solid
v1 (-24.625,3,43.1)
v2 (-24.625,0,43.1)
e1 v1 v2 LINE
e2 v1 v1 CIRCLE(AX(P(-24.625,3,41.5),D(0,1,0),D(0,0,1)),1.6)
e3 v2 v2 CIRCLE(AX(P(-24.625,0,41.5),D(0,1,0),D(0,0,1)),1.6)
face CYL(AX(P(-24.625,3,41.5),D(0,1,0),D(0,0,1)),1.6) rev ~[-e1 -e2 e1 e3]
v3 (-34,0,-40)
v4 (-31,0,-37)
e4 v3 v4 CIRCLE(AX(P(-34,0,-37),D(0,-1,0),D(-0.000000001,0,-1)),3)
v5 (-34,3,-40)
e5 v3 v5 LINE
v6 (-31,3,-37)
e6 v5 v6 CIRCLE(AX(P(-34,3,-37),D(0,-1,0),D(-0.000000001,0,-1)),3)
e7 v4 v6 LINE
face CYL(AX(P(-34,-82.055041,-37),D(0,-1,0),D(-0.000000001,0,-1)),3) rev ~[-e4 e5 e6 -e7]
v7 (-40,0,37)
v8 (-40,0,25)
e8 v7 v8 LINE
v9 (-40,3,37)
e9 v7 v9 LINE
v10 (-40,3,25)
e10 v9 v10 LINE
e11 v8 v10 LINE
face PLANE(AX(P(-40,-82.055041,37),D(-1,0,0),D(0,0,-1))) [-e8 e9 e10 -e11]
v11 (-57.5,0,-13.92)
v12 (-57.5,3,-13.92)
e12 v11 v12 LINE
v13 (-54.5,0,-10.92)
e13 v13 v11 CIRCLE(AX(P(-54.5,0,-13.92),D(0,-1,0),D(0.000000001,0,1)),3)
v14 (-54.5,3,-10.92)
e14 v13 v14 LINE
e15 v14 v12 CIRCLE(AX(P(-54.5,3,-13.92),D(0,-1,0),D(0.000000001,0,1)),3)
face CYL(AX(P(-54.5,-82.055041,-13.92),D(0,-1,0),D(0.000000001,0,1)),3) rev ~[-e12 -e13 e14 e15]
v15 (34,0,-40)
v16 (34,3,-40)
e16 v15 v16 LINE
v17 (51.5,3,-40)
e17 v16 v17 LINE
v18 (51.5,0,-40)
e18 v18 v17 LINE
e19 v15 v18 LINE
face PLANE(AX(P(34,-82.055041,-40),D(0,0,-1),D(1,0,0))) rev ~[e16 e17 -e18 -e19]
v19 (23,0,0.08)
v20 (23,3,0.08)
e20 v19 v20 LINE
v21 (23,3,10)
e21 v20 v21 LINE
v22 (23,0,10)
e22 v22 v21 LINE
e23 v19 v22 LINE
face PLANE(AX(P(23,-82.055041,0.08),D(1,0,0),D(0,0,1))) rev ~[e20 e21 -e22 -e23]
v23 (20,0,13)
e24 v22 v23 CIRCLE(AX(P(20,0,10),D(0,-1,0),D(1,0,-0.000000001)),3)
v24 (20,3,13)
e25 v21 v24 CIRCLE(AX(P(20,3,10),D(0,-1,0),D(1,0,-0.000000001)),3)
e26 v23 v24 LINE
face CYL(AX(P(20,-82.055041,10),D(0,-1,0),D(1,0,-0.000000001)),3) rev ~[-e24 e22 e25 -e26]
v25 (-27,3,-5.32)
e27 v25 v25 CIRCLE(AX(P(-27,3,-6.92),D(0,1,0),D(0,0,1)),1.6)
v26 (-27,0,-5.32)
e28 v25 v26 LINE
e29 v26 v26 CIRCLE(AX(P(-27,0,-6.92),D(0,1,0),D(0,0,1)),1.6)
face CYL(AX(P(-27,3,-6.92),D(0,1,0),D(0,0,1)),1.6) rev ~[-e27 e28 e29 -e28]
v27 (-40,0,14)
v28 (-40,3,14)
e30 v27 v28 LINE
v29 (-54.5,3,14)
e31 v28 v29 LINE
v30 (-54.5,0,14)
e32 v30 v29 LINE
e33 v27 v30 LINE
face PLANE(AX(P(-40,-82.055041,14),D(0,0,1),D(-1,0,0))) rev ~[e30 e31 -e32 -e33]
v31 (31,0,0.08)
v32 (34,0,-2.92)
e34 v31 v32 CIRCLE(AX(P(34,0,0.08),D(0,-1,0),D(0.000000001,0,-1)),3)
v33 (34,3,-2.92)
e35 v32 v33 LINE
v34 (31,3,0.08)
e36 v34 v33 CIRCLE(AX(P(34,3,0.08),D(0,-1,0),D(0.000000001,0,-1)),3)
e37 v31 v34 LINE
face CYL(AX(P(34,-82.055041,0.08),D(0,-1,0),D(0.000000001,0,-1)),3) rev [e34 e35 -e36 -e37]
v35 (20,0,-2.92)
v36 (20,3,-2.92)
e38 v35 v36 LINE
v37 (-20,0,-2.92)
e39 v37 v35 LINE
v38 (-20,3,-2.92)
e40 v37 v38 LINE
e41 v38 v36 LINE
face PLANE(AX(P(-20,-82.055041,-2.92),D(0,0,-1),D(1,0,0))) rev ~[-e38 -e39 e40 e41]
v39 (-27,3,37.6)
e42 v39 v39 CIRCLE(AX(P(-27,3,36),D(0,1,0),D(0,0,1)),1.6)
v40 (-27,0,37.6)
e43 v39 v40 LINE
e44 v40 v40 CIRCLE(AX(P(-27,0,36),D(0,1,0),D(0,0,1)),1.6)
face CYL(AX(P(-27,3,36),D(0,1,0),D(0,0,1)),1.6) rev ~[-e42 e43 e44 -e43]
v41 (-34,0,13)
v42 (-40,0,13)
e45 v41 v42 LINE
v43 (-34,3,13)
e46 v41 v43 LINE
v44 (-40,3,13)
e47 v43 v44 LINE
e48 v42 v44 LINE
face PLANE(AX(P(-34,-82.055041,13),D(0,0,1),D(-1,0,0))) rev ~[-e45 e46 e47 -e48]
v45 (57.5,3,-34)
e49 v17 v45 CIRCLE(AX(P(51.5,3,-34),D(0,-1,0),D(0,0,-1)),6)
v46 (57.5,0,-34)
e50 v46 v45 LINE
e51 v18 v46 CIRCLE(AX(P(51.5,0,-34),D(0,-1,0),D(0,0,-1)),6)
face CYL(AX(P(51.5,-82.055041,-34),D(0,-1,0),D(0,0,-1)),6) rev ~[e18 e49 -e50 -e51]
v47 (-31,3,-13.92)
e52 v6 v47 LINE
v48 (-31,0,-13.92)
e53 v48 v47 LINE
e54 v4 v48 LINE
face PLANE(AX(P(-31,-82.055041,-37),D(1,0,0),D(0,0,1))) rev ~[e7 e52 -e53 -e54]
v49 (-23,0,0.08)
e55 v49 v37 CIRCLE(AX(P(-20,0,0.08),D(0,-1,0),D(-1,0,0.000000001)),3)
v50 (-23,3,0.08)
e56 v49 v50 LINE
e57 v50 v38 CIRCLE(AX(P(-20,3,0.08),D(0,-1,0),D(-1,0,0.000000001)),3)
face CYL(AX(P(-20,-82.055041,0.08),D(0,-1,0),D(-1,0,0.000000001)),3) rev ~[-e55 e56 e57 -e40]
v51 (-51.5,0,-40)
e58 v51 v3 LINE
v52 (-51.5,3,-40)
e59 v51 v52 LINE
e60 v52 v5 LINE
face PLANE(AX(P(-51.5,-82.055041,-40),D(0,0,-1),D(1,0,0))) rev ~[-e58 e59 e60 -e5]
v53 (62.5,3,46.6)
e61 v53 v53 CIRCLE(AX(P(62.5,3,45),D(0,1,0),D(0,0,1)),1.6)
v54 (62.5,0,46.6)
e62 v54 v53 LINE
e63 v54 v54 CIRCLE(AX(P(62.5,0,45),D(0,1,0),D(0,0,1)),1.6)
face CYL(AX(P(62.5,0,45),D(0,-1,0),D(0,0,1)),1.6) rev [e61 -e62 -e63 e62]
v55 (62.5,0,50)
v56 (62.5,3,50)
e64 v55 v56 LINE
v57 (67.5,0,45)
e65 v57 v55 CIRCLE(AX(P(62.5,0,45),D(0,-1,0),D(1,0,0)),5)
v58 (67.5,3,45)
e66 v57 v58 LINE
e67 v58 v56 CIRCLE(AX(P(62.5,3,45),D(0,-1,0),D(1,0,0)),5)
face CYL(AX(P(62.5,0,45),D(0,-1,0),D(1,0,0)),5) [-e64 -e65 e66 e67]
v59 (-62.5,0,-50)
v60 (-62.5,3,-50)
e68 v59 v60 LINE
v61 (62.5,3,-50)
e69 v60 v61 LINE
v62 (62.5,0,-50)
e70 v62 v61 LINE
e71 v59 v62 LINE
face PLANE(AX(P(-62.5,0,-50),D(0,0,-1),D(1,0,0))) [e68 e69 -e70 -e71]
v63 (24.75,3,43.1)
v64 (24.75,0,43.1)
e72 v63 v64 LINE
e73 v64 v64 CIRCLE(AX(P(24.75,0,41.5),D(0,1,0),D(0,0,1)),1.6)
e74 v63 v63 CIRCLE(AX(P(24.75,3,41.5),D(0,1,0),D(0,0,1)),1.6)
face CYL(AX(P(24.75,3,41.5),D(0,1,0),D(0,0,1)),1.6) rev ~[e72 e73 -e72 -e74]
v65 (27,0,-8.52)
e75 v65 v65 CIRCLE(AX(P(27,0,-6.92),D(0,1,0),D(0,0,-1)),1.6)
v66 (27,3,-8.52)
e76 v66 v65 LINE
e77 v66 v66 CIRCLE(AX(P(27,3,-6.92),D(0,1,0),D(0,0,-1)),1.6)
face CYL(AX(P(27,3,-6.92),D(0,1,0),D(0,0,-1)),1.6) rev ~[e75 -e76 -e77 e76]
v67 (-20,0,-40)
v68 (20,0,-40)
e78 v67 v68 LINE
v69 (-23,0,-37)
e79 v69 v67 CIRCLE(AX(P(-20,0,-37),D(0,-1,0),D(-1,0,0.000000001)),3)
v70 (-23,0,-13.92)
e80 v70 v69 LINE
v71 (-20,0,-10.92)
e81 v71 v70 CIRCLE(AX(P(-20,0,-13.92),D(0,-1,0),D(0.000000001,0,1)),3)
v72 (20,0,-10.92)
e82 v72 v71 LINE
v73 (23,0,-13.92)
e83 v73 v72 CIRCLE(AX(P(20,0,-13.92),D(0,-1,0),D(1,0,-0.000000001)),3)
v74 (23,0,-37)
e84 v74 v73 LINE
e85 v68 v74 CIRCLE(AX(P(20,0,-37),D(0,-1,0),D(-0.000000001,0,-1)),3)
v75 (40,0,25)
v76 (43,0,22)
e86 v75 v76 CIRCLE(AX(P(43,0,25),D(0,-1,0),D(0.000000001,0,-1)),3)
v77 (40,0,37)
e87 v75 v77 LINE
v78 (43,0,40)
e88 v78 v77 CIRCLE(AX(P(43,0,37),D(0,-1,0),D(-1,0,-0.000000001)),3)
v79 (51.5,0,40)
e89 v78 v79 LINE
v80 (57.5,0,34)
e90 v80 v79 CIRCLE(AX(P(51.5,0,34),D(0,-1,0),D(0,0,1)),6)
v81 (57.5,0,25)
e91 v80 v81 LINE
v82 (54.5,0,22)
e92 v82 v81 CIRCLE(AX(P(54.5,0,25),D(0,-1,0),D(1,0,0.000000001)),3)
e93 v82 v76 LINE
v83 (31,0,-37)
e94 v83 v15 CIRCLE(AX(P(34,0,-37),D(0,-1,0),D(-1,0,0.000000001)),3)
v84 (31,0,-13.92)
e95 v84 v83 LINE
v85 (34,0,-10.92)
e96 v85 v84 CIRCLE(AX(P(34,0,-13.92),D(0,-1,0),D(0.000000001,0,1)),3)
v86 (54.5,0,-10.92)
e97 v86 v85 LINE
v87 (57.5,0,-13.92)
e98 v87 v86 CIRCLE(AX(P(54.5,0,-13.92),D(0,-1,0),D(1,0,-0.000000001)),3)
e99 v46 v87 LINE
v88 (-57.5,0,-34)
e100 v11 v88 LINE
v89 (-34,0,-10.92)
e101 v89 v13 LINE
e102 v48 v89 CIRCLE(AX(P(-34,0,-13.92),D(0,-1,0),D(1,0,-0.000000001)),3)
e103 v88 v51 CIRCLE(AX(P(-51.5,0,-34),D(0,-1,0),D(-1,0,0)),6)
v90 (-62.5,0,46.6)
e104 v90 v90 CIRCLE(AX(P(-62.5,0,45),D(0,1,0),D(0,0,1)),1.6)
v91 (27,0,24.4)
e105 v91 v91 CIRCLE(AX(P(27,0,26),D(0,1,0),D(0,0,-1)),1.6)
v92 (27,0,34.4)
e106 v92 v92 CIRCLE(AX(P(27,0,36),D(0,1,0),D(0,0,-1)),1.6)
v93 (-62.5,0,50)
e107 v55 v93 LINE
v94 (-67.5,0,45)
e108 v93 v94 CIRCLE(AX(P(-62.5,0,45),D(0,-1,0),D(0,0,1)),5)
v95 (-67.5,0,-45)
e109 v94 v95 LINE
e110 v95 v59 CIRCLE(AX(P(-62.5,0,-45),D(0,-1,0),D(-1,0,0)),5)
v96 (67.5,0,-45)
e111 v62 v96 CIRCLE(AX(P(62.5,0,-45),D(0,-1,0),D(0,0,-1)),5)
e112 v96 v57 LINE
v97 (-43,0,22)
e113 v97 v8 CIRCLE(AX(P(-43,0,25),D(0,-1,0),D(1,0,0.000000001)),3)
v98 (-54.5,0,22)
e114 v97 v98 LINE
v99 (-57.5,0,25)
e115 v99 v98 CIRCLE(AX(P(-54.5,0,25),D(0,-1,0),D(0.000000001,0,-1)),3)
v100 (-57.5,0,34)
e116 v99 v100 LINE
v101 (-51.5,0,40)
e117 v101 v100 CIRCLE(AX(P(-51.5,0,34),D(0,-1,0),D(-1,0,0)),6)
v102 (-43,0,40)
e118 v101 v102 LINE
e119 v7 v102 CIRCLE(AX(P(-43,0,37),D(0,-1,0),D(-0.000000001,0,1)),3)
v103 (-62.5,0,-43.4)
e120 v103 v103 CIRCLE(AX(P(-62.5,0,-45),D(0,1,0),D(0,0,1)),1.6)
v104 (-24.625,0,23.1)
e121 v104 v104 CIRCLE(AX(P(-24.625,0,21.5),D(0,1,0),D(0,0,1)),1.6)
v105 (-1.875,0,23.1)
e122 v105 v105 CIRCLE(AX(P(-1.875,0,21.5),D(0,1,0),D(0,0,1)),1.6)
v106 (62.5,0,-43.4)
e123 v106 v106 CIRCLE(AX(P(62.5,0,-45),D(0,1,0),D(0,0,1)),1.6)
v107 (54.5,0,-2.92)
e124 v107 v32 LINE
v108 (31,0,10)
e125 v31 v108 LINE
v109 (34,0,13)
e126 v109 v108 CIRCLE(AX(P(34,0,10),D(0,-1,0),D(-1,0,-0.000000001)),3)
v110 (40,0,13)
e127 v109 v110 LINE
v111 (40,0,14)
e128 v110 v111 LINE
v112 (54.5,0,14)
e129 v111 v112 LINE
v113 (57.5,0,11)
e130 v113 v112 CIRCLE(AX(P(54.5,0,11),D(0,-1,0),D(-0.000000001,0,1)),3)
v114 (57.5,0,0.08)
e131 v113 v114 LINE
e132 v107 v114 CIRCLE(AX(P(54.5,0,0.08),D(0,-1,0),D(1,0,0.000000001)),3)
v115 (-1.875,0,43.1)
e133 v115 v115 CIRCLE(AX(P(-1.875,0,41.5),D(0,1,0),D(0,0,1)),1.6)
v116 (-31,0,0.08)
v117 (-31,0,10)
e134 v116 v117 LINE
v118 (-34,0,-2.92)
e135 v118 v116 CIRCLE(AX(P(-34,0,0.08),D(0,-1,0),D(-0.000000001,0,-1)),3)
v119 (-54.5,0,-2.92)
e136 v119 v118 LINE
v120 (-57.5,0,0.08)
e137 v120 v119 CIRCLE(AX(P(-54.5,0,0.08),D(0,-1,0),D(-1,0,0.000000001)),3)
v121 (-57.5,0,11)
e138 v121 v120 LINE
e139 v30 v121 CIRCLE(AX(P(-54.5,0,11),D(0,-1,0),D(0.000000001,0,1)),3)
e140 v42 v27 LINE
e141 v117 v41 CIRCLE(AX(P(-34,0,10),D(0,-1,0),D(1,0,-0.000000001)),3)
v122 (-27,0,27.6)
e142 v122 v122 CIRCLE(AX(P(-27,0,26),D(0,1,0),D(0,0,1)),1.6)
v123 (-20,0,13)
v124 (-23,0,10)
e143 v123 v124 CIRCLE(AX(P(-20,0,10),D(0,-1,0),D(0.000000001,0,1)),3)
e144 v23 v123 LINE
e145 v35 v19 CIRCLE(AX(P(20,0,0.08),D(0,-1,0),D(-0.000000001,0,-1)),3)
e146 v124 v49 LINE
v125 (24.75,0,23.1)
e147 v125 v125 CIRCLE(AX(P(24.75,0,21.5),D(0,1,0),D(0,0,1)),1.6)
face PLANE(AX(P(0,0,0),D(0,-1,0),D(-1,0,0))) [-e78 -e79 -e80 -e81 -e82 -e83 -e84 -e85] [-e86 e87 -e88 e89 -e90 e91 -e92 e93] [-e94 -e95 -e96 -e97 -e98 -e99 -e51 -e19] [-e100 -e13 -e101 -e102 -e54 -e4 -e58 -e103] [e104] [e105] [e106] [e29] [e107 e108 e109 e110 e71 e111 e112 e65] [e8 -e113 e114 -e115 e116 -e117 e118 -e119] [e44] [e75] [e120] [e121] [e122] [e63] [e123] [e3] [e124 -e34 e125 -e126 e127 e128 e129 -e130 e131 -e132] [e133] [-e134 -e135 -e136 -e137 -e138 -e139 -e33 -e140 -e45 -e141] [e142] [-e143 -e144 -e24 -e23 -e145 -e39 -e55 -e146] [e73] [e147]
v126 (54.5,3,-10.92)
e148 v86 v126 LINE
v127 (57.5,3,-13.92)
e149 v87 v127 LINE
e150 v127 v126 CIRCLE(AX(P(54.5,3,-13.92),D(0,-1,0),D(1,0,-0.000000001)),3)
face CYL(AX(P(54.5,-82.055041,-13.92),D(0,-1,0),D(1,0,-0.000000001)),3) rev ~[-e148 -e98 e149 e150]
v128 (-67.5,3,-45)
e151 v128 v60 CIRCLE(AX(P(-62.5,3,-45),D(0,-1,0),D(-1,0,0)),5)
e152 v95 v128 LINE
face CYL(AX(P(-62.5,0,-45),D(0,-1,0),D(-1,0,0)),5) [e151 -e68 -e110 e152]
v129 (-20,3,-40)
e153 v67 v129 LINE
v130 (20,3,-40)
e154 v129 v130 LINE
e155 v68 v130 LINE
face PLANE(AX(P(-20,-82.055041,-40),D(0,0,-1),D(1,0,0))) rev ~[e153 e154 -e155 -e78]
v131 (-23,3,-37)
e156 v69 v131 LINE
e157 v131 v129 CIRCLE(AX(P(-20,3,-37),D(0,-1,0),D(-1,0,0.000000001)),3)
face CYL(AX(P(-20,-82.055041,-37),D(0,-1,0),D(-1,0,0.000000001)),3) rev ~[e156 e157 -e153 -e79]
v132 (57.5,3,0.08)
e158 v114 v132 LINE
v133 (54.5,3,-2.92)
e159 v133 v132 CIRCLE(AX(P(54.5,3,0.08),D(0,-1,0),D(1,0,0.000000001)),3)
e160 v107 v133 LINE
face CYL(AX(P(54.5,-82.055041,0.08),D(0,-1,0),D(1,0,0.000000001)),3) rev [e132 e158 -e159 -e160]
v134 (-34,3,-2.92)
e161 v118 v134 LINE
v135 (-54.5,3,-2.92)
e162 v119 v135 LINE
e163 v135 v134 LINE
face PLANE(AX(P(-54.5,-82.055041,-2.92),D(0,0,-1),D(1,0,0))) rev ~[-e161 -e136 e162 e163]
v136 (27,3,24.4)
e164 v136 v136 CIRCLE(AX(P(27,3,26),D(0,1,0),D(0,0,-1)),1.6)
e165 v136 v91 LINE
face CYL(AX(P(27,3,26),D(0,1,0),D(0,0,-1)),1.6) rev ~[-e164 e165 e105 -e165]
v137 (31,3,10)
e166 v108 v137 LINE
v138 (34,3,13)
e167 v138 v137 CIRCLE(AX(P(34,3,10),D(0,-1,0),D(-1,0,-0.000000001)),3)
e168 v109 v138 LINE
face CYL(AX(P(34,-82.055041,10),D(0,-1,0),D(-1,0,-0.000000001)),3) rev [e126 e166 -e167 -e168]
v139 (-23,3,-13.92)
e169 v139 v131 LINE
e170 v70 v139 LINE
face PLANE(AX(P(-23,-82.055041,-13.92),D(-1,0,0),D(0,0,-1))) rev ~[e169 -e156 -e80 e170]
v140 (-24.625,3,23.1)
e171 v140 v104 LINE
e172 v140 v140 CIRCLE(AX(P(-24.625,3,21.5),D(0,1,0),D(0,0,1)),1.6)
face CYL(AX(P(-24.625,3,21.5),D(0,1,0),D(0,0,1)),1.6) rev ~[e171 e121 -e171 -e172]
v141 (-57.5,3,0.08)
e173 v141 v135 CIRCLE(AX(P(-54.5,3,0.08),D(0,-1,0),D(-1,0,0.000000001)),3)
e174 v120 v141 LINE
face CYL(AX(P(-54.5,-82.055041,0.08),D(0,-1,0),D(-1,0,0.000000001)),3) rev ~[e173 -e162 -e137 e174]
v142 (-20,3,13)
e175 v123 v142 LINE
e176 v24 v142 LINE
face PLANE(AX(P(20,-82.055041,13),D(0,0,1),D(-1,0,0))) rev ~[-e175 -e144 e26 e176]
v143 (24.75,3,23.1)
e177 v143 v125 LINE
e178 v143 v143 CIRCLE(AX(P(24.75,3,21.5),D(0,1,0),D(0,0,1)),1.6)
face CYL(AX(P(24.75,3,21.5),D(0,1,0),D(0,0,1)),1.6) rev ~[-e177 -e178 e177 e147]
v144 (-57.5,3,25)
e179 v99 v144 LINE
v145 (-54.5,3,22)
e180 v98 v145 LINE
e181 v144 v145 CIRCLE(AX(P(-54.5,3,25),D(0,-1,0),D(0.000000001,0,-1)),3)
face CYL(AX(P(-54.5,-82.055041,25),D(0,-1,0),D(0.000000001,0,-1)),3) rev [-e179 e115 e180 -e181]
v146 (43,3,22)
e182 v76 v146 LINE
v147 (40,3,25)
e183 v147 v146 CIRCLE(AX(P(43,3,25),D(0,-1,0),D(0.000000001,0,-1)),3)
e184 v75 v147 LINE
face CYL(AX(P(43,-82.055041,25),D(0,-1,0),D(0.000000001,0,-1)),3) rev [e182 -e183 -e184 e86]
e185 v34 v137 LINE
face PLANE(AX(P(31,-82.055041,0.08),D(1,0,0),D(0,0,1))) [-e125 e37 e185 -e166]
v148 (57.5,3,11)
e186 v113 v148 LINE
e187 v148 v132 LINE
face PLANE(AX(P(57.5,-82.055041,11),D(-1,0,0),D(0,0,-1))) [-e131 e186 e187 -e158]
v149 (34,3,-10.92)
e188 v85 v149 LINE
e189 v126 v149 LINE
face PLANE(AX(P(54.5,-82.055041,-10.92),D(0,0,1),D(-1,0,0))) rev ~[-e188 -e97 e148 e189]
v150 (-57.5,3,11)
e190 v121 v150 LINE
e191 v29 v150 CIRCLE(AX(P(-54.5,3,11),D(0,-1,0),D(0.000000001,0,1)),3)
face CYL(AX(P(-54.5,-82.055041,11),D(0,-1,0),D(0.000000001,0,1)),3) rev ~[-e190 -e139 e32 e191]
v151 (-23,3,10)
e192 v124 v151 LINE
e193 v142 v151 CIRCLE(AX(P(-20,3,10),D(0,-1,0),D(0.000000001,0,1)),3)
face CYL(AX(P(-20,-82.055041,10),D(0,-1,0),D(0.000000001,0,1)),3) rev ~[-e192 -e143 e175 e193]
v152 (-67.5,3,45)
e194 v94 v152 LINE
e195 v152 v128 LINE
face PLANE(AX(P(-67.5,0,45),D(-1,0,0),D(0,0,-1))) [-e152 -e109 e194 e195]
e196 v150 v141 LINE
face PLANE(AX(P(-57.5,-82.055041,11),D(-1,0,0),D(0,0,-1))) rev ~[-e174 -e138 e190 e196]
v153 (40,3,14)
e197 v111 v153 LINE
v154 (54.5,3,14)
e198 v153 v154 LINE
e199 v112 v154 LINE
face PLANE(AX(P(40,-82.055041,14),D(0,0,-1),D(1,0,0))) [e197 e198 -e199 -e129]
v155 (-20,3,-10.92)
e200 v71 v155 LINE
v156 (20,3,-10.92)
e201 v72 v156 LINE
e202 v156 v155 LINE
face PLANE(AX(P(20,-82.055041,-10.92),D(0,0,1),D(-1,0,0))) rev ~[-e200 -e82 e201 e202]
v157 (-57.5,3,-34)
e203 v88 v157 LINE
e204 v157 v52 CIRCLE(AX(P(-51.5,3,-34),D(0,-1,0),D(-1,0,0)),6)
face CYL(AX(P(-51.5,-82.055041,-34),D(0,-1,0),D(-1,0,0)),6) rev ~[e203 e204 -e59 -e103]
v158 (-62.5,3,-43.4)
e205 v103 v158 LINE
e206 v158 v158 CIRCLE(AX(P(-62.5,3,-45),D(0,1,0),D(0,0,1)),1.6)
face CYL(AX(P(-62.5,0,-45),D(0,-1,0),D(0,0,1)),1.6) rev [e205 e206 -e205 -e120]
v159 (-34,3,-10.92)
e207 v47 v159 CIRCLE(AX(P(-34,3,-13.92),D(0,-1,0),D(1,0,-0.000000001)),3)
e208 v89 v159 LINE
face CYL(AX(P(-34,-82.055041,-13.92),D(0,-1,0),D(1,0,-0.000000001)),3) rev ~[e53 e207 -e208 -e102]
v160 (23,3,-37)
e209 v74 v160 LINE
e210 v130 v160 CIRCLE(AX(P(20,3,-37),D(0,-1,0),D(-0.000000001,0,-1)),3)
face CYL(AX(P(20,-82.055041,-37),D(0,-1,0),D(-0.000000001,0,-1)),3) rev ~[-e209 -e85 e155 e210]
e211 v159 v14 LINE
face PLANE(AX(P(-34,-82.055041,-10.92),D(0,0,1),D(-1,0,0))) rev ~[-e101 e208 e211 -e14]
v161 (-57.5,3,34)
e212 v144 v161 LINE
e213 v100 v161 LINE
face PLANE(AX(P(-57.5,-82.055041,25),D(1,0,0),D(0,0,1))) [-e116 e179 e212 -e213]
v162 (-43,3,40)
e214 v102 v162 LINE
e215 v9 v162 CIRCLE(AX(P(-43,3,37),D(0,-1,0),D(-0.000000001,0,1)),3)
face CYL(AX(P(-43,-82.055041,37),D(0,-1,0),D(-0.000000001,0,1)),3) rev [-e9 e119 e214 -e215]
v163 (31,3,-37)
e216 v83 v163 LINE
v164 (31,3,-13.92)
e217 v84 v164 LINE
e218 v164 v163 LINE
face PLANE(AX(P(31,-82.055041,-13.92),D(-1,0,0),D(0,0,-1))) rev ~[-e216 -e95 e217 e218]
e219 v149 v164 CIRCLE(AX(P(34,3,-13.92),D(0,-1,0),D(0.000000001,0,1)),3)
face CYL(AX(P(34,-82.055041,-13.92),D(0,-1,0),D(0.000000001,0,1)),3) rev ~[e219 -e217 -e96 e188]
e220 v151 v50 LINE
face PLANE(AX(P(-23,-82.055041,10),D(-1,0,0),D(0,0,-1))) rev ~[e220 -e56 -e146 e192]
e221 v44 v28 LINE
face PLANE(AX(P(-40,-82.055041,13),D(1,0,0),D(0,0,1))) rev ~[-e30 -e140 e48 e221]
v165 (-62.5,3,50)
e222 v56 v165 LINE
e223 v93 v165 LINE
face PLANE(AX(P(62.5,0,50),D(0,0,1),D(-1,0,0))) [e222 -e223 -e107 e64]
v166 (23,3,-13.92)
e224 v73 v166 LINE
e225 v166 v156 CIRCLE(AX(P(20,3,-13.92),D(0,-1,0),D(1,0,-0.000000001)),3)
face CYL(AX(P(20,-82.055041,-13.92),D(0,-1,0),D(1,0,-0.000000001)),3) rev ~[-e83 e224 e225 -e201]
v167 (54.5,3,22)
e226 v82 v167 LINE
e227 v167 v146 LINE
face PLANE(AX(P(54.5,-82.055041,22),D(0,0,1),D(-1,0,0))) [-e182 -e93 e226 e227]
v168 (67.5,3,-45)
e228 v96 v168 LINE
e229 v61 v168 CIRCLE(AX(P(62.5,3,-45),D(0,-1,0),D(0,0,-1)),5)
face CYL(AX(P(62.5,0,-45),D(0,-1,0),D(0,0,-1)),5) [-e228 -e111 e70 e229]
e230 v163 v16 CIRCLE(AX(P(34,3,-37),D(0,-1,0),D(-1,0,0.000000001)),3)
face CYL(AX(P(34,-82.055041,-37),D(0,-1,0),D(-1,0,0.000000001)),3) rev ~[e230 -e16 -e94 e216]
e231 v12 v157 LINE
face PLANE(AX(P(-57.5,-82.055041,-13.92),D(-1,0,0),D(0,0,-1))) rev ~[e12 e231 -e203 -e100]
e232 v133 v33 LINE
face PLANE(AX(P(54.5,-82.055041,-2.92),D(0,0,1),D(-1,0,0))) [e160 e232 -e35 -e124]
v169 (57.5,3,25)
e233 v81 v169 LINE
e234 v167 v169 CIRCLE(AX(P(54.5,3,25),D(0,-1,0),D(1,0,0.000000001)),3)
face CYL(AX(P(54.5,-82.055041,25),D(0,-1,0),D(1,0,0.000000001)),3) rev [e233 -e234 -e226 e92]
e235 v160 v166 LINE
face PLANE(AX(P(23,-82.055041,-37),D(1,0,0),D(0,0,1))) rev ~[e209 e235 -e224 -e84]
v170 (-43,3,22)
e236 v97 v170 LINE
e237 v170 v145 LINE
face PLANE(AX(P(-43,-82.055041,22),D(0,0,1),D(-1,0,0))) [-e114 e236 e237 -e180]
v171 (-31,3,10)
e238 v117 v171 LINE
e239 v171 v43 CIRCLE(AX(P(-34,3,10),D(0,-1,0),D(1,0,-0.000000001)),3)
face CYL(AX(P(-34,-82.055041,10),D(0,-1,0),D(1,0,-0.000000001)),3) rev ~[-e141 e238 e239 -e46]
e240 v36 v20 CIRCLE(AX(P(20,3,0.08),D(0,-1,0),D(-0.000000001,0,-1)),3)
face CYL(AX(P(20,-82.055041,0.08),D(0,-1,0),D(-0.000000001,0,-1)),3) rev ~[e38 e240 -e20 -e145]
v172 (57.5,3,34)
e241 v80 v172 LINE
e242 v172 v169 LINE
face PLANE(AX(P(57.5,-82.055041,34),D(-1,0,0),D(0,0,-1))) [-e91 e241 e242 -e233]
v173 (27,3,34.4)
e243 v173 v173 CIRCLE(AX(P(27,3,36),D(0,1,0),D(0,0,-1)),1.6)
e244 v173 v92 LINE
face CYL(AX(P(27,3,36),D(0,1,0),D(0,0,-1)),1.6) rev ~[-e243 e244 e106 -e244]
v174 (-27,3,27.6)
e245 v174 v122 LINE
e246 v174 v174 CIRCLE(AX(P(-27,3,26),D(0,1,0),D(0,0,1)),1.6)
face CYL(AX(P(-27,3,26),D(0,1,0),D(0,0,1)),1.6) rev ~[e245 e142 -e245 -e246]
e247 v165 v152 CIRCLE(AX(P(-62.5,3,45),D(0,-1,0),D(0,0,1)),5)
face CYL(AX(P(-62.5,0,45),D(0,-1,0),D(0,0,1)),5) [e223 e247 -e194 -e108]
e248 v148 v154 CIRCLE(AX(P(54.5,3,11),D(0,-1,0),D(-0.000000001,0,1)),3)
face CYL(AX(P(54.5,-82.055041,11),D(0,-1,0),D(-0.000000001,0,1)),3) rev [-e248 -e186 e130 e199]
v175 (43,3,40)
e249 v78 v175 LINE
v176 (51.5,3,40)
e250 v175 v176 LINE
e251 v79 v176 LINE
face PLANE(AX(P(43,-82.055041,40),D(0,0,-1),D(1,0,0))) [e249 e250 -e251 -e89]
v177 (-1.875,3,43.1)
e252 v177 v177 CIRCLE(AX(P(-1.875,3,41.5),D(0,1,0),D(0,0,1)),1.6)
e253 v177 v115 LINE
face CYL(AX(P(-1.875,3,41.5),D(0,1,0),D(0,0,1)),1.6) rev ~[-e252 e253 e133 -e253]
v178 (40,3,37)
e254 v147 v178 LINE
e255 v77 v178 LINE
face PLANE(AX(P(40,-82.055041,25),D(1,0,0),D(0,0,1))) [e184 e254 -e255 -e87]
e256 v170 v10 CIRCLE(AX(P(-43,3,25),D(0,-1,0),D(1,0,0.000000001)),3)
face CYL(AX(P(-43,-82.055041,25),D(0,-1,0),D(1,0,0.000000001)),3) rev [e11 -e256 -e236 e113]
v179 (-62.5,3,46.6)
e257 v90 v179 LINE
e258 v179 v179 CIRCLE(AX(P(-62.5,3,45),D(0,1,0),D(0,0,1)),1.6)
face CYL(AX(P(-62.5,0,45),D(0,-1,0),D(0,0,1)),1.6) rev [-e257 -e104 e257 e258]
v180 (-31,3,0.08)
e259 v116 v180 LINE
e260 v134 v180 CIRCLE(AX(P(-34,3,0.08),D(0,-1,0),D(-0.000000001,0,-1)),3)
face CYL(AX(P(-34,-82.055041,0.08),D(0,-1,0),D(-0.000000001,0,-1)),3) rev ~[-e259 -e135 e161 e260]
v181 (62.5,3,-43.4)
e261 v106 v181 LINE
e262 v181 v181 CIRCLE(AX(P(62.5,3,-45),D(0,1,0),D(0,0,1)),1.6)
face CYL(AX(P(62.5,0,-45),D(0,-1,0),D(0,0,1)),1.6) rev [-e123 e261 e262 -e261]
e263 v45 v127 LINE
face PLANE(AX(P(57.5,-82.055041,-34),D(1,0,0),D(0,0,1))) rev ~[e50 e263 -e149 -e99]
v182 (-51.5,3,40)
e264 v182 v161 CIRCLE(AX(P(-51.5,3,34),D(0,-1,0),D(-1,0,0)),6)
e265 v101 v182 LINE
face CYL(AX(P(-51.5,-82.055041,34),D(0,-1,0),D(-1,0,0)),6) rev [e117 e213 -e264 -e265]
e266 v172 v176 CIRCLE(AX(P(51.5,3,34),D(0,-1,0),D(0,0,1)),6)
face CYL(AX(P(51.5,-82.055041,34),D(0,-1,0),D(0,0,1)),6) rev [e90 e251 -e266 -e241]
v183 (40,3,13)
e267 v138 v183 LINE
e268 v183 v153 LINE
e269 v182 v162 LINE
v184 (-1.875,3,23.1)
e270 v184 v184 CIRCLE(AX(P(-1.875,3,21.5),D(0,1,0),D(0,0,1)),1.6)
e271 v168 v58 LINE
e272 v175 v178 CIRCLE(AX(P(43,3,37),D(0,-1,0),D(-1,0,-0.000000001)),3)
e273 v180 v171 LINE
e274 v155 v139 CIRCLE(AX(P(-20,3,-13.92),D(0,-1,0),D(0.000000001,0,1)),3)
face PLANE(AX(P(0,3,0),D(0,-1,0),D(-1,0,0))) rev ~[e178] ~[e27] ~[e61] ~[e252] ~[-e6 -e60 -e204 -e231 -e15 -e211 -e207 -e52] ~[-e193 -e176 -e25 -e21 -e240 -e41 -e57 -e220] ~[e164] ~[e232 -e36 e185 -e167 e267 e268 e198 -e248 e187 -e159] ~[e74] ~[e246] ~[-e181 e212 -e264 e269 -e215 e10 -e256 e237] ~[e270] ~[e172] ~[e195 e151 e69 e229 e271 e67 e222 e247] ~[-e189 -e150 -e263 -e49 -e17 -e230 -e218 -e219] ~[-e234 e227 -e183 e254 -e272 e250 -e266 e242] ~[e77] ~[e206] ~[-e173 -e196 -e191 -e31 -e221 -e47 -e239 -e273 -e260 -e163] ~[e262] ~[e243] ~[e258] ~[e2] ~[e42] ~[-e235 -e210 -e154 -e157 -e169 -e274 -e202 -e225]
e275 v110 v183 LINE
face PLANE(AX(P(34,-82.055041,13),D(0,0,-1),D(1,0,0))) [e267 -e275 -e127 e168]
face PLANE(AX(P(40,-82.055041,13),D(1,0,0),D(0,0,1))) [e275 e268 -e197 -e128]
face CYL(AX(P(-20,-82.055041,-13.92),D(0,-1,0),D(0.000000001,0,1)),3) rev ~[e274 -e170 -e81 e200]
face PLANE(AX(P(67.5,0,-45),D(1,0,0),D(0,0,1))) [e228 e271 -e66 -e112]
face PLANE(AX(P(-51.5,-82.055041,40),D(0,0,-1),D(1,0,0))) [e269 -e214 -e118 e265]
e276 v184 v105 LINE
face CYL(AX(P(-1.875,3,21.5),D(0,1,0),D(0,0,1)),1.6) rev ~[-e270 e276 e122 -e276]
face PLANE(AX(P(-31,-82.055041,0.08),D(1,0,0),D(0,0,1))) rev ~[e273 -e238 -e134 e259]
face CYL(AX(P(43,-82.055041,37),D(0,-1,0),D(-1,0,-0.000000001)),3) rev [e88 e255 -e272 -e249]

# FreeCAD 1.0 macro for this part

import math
import FreeCAD as App
import Part
import Sketcher
from FreeCAD import Vector
Q = App.Units.Quantity

doc = App.newDocument("Part")
body = doc.addObject("PartDesign::Body", "Body")

# Sketch on XZ plane
sketch1 = body.newObject("Sketcher::SketchObject", "Sketch")
sketch1.AttachmentSupport = (doc.getObject("XZ_Plane"), [""])
sketch1.MapMode = "FlatFace"
sketch1.addGeometry([
    Part.LineSegment(Vector(62.5, -50, 0), Vector(-62.5, -50, 0)),  # 0
    Part.ArcOfCircle(Part.Circle(Vector(-62.5, -45, 0), Vector(0, 0, 1), 5), math.radians(180), math.radians(270)),  # 1
    Part.LineSegment(Vector(-67.5, -45, 0), Vector(-67.5, 45, 0)),  # 2
    Part.ArcOfCircle(Part.Circle(Vector(-62.5, 45, 0), Vector(0, 0, 1), 5), math.radians(90), math.radians(180)),  # 3
    Part.LineSegment(Vector(-62.5, 50, 0), Vector(62.5, 50, 0)),  # 4
    Part.ArcOfCircle(Part.Circle(Vector(62.5, 45, 0), Vector(0, 0, 1), 5), math.radians(0), math.radians(90)),  # 5
    Part.LineSegment(Vector(67.5, 45, 0), Vector(67.5, -45, 0)),  # 6
    Part.ArcOfCircle(Part.Circle(Vector(62.5, -45, 0), Vector(0, 0, 1), 5), math.radians(-90), math.radians(0)),  # 7
    Part.Circle(Vector(62.5, 45, 0), Vector(0, 0, 1), 1.6),  # 8
    Part.Circle(Vector(-62.5, 45, 0), Vector(0, 0, 1), 1.6),  # 9
    Part.Circle(Vector(62.5, -45, 0), Vector(0, 0, 1), 1.6),  # 10
    Part.Circle(Vector(-62.5, -45, 0), Vector(0, 0, 1), 1.6),  # 11
], False)
sketch1.addConstraint([
    Sketcher.Constraint("Tangent", 0, 2, 1, 2),
    Sketcher.Constraint("Tangent", 1, 1, 2, 1),
    Sketcher.Constraint("Tangent", 2, 2, 3, 2),
    Sketcher.Constraint("Tangent", 3, 1, 4, 1),
    Sketcher.Constraint("Tangent", 4, 2, 5, 2),
    Sketcher.Constraint("Tangent", 5, 1, 6, 1),
    Sketcher.Constraint("Tangent", 6, 2, 7, 2),
    Sketcher.Constraint("Tangent", 7, 1, 0, 1),
    Sketcher.Constraint("Horizontal", 0),
    Sketcher.Constraint("Vertical", 2),
    Sketcher.Constraint("Horizontal", 4),
    Sketcher.Constraint("Vertical", 6),
    Sketcher.Constraint("Coincident", 8, 3, 5, 3),
    Sketcher.Constraint("Coincident", 9, 3, 3, 3),
    Sketcher.Constraint("Coincident", 10, 3, 7, 3),
    Sketcher.Constraint("Coincident", 11, 3, 1, 3),
    Sketcher.Constraint("Equal", 1, 3),
    Sketcher.Constraint("Equal", 3, 5),
    Sketcher.Constraint("Equal", 5, 7),
    Sketcher.Constraint("Equal", 8, 9),
    Sketcher.Constraint("Equal", 9, 10),
    Sketcher.Constraint("Equal", 10, 11),
    Sketcher.Constraint("Symmetric", 1, 3, 5, 3, -1, 1),
    Sketcher.Constraint("Radius", 1, Q("5 mm")),
    Sketcher.Constraint("Diameter", 8, Q("3.2 mm")),
    Sketcher.Constraint("DistanceX", 0, 2, 0, 1, Q("125 mm")),
    Sketcher.Constraint("DistanceY", 2, 1, 2, 2, Q("90 mm")),
])
pad1 = body.newObject("PartDesign::Pad", "Pad")
pad1.Profile = sketch1
pad1.Length = 3
pad1.Reversed = True

# Sketch on XZ plane
sketch2 = body.newObject("Sketcher::SketchObject", "Sketch001")
sketch2.AttachmentSupport = (doc.getObject("XZ_Plane"), [""])
sketch2.MapMode = "FlatFace"
sketch2.AttachmentOffset = App.Placement(Vector(0, 0, -3), App.Rotation())
sketch2.addGeometry([
    Part.Circle(Vector(-24.6, 41.5, 0), Vector(0, 0, 1), 1.6),  # 0
    Part.Circle(Vector(-24.6, 21.5, 0), Vector(0, 0, 1), 1.6),  # 1
    Part.Circle(Vector(-1.9, 41.5, 0), Vector(0, 0, 1), 1.6),  # 2
    Part.Circle(Vector(-1.9, 21.5, 0), Vector(0, 0, 1), 1.6),  # 3
    Part.Circle(Vector(24.8, 41.5, 0), Vector(0, 0, 1), 1.6),  # 4
    Part.Circle(Vector(24.8, 21.5, 0), Vector(0, 0, 1), 1.6),  # 5
], False)
sketch2.addConstraint([
    Sketcher.Constraint("Equal", 0, 1),
    Sketcher.Constraint("Equal", 1, 2),
    Sketcher.Constraint("Equal", 2, 3),
    Sketcher.Constraint("Equal", 3, 4),
    Sketcher.Constraint("Equal", 4, 5),
    Sketcher.Constraint("Horizontal", 0, 3, 2, 3),
    Sketcher.Constraint("Horizontal", 1, 3, 3, 3),
    Sketcher.Constraint("Horizontal", 2, 3, 4, 3),
    Sketcher.Constraint("Horizontal", 3, 3, 5, 3),
    Sketcher.Constraint("Vertical", 0, 3, 1, 3),
    Sketcher.Constraint("Vertical", 2, 3, 3, 3),
    Sketcher.Constraint("Vertical", 4, 3, 5, 3),
    Sketcher.Constraint("Diameter", 0, Q("3.2 mm")),
    Sketcher.Constraint("DistanceY", 1, 3, 0, 3, Q("20 mm")),
    Sketcher.Constraint("DistanceY", -1, 1, 0, 3, Q("41.5 mm")),
    Sketcher.Constraint("DistanceX", -1, 1, 4, 3, Q("24.75 mm")),
    Sketcher.Constraint("DistanceX", 0, 3, 2, 3, Q("22.75 mm")),
    Sketcher.Constraint("DistanceX", 0, 3, -1, 1, Q("24.625 mm")),
])
pocket1 = body.newObject("PartDesign::Pocket", "Pocket")
pocket1.Profile = sketch2
pocket1.Type = "ThroughAll"
pocket1.Reversed = True

# Sketch on XZ plane
sketch3 = body.newObject("Sketcher::SketchObject", "Sketch002")
sketch3.AttachmentSupport = (doc.getObject("XZ_Plane"), [""])
sketch3.MapMode = "FlatFace"
sketch3.AttachmentOffset = App.Placement(Vector(0, 0, -3), App.Rotation())
sketch3.addGeometry([
    Part.Circle(Vector(-27, 36, 0), Vector(0, 0, 1), 1.6),  # 0
    Part.Circle(Vector(27, 36, 0), Vector(0, 0, 1), 1.6),  # 1
    Part.Circle(Vector(-27, -6.9, 0), Vector(0, 0, 1), 1.6),  # 2
    Part.Circle(Vector(27, -6.9, 0), Vector(0, 0, 1), 1.6),  # 3
    Part.Circle(Vector(-27, 26, 0), Vector(0, 0, 1), 1.6),  # 4
    Part.Circle(Vector(27, 26, 0), Vector(0, 0, 1), 1.6),  # 5
], False)
sketch3.addConstraint([
    Sketcher.Constraint("Equal", 0, 1),
    Sketcher.Constraint("Equal", 1, 2),
    Sketcher.Constraint("Equal", 2, 3),
    Sketcher.Constraint("Equal", 3, 4),
    Sketcher.Constraint("Equal", 4, 5),
    Sketcher.Constraint("Symmetric", 0, 3, 1, 3, -2),
    Sketcher.Constraint("Symmetric", 2, 3, 3, 3, -2),
    Sketcher.Constraint("Symmetric", 4, 3, 5, 3, -2),
    Sketcher.Constraint("Vertical", 0, 3, 2, 3),
    Sketcher.Constraint("Vertical", 2, 3, 4, 3),
    Sketcher.Constraint("Diameter", 0, Q("3.2 mm")),
    Sketcher.Constraint("DistanceX", 0, 3, -1, 1, Q("27 mm")),
    Sketcher.Constraint("DistanceY", -1, 1, 0, 3, Q("36 mm")),
    Sketcher.Constraint("DistanceY", -1, 1, 4, 3, Q("26 mm")),
    Sketcher.Constraint("DistanceY", 2, 3, -1, 1, Q("6.92 mm")),
])
pocket2 = body.newObject("PartDesign::Pocket", "Pocket001")
pocket2.Profile = sketch3
pocket2.Type = "ThroughAll"
pocket2.Reversed = True

# Sketch on XZ plane
sketch4 = body.newObject("Sketcher::SketchObject", "Sketch003")
sketch4.AttachmentSupport = (doc.getObject("XZ_Plane"), [""])
sketch4.MapMode = "FlatFace"
sketch4.AttachmentOffset = App.Placement(Vector(0, 0, -3), App.Rotation())
sketch4.addGeometry([
    Part.ArcOfCircle(Part.Circle(Vector(-54.5, -13.9, 0), Vector(0, 0, 1), 3), math.radians(90), math.radians(180)),  # 0
    Part.LineSegment(Vector(-54.5, -10.9, 0), Vector(-34, -10.9, 0)),  # 1
    Part.ArcOfCircle(Part.Circle(Vector(-34, -13.9, 0), Vector(0, 0, 1), 3), math.radians(0), math.radians(90)),  # 2
    Part.LineSegment(Vector(-31, -13.9, 0), Vector(-31, -37, 0)),  # 3
    Part.ArcOfCircle(Part.Circle(Vector(-34, -37, 0), Vector(0, 0, 1), 3), math.radians(-90), math.radians(0)),  # 4
    Part.LineSegment(Vector(-34, -40, 0), Vector(-51.5, -40, 0)),  # 5
    Part.ArcOfCircle(Part.Circle(Vector(-51.5, -34, 0), Vector(0, 0, 1), 6), math.radians(180), math.radians(270)),  # 6
    Part.LineSegment(Vector(-57.5, -34, 0), Vector(-57.5, -13.9, 0)),  # 7
    Part.ArcOfCircle(Part.Circle(Vector(-20, -13.9, 0), Vector(0, 0, 1), 3), math.radians(90), math.radians(180)),  # 8
    Part.LineSegment(Vector(-20, -10.9, 0), Vector(20, -10.9, 0)),  # 9
    Part.ArcOfCircle(Part.Circle(Vector(20, -13.9, 0), Vector(0, 0, 1), 3), math.radians(0), math.radians(90)),  # 10
    Part.LineSegment(Vector(23, -13.9, 0), Vector(23, -37, 0)),  # 11
    Part.ArcOfCircle(Part.Circle(Vector(20, -37, 0), Vector(0, 0, 1), 3), math.radians(-90), math.radians(0)),  # 12
    Part.LineSegment(Vector(20, -40, 0), Vector(-20, -40, 0)),  # 13
    Part.ArcOfCircle(Part.Circle(Vector(-20, -37, 0), Vector(0, 0, 1), 3), math.radians(180), math.radians(270)),  # 14
    Part.LineSegment(Vector(-23, -37, 0), Vector(-23, -13.9, 0)),  # 15
    Part.ArcOfCircle(Part.Circle(Vector(34, -37, 0), Vector(0, 0, 1), 3), math.radians(180), math.radians(270)),  # 16
    Part.LineSegment(Vector(31, -37, 0), Vector(31, -13.9, 0)),  # 17
    Part.ArcOfCircle(Part.Circle(Vector(34, -13.9, 0), Vector(0, 0, 1), 3), math.radians(90), math.radians(180)),  # 18
    Part.LineSegment(Vector(34, -10.9, 0), Vector(54.5, -10.9, 0)),  # 19
    Part.ArcOfCircle(Part.Circle(Vector(54.5, -13.9, 0), Vector(0, 0, 1), 3), math.radians(0), math.radians(90)),  # 20
    Part.LineSegment(Vector(57.5, -13.9, 0), Vector(57.5, -34, 0)),  # 21
    Part.ArcOfCircle(Part.Circle(Vector(51.5, -34, 0), Vector(0, 0, 1), 6), math.radians(-90), math.radians(0)),  # 22
    Part.LineSegment(Vector(51.5, -40, 0), Vector(34, -40, 0)),  # 23
    Part.LineSegment(Vector(57.5, 11, 0), Vector(57.5, 0.1, 0)),  # 24
    Part.ArcOfCircle(Part.Circle(Vector(54.5, 0.1, 0), Vector(0, 0, 1), 3), math.radians(-90), math.radians(0)),  # 25
    Part.LineSegment(Vector(54.5, -2.9, 0), Vector(34, -2.9, 0)),  # 26
    Part.ArcOfCircle(Part.Circle(Vector(34, 0.1, 0), Vector(0, 0, 1), 3), math.radians(180), math.radians(270)),  # 27
    Part.LineSegment(Vector(31, 0.1, 0), Vector(31, 10, 0)),  # 28
    Part.ArcOfCircle(Part.Circle(Vector(34, 10, 0), Vector(0, 0, 1), 3), math.radians(90), math.radians(180)),  # 29
    Part.LineSegment(Vector(34, 13, 0), Vector(40, 13, 0)),  # 30
    Part.LineSegment(Vector(40, 13, 0), Vector(40, 14, 0)),  # 31
    Part.LineSegment(Vector(40, 14, 0), Vector(54.5, 14, 0)),  # 32
    Part.ArcOfCircle(Part.Circle(Vector(54.5, 11, 0), Vector(0, 0, 1), 3), math.radians(0), math.radians(90)),  # 33
    Part.ArcOfCircle(Part.Circle(Vector(-20, 0.1, 0), Vector(0, 0, 1), 3), math.radians(180), math.radians(270)),  # 34
    Part.LineSegment(Vector(-23, 0.1, 0), Vector(-23, 10, 0)),  # 35
    Part.ArcOfCircle(Part.Circle(Vector(-20, 10, 0), Vector(0, 0, 1), 3), math.radians(90), math.radians(180)),  # 36
    Part.LineSegment(Vector(-20, 13, 0), Vector(20, 13, 0)),  # 37
    Part.ArcOfCircle(Part.Circle(Vector(20, 10, 0), Vector(0, 0, 1), 3), math.radians(0), math.radians(90)),  # 38
    Part.LineSegment(Vector(23, 10, 0), Vector(23, 0.1, 0)),  # 39
    Part.ArcOfCircle(Part.Circle(Vector(20, 0.1, 0), Vector(0, 0, 1), 3), math.radians(-90), math.radians(0)),  # 40
    Part.LineSegment(Vector(20, -2.9, 0), Vector(-20, -2.9, 0)),  # 41
    Part.LineSegment(Vector(-31, 10, 0), Vector(-31, 0.1, 0)),  # 42
    Part.ArcOfCircle(Part.Circle(Vector(-34, 0.1, 0), Vector(0, 0, 1), 3), math.radians(-90), math.radians(0)),  # 43
    Part.LineSegment(Vector(-34, -2.9, 0), Vector(-54.5, -2.9, 0)),  # 44
    Part.ArcOfCircle(Part.Circle(Vector(-54.5, 0.1, 0), Vector(0, 0, 1), 3), math.radians(180), math.radians(270)),  # 45
    Part.LineSegment(Vector(-57.5, 0.1, 0), Vector(-57.5, 11, 0)),  # 46
    Part.ArcOfCircle(Part.Circle(Vector(-54.5, 11, 0), Vector(0, 0, 1), 3), math.radians(90), math.radians(180)),  # 47
    Part.LineSegment(Vector(-54.5, 14, 0), Vector(-40, 14, 0)),  # 48
    Part.LineSegment(Vector(-40, 14, 0), Vector(-40, 13, 0)),  # 49
    Part.LineSegment(Vector(-40, 13, 0), Vector(-34, 13, 0)),  # 50
    Part.ArcOfCircle(Part.Circle(Vector(-34, 10, 0), Vector(0, 0, 1), 3), math.radians(0), math.radians(90)),  # 51
    Part.ArcOfCircle(Part.Circle(Vector(-54.5, 25, 0), Vector(0, 0, 1), 3), math.radians(180), math.radians(270)),  # 52
    Part.LineSegment(Vector(-57.5, 25, 0), Vector(-57.5, 34, 0)),  # 53
    Part.ArcOfCircle(Part.Circle(Vector(-51.5, 34, 0), Vector(0, 0, 1), 6), math.radians(90), math.radians(180)),  # 54
    Part.LineSegment(Vector(-51.5, 40, 0), Vector(-43, 40, 0)),  # 55
    Part.ArcOfCircle(Part.Circle(Vector(-43, 37, 0), Vector(0, 0, 1), 3), math.radians(0), math.radians(90)),  # 56
    Part.LineSegment(Vector(-40, 37, 0), Vector(-40, 25, 0)),  # 57
    Part.ArcOfCircle(Part.Circle(Vector(-43, 25, 0), Vector(0, 0, 1), 3), math.radians(-90), math.radians(0)),  # 58
    Part.LineSegment(Vector(-43, 22, 0), Vector(-54.5, 22, 0)),  # 59
    Part.LineSegment(Vector(57.5, 34, 0), Vector(57.5, 25, 0)),  # 60
    Part.ArcOfCircle(Part.Circle(Vector(54.5, 25, 0), Vector(0, 0, 1), 3), math.radians(-90), math.radians(0)),  # 61
    Part.LineSegment(Vector(54.5, 22, 0), Vector(43, 22, 0)),  # 62
    Part.ArcOfCircle(Part.Circle(Vector(43, 25, 0), Vector(0, 0, 1), 3), math.radians(180), math.radians(270)),  # 63
    Part.LineSegment(Vector(40, 25, 0), Vector(40, 37, 0)),  # 64
    Part.ArcOfCircle(Part.Circle(Vector(43, 37, 0), Vector(0, 0, 1), 3), math.radians(90), math.radians(180)),  # 65
    Part.LineSegment(Vector(43, 40, 0), Vector(51.5, 40, 0)),  # 66
    Part.ArcOfCircle(Part.Circle(Vector(51.5, 34, 0), Vector(0, 0, 1), 6), math.radians(0), math.radians(90)),  # 67
], False)
sketch4.addConstraint([
    Sketcher.Constraint("Tangent", 0, 1, 1, 1),
    Sketcher.Constraint("Tangent", 1, 2, 2, 2),
    Sketcher.Constraint("Tangent", 2, 1, 3, 1),
    Sketcher.Constraint("Tangent", 3, 2, 4, 2),
    Sketcher.Constraint("Tangent", 4, 1, 5, 1),
    Sketcher.Constraint("Tangent", 5, 2, 6, 2),
    Sketcher.Constraint("Tangent", 6, 1, 7, 1),
    Sketcher.Constraint("Tangent", 7, 2, 0, 2),
    Sketcher.Constraint("Tangent", 8, 1, 9, 1),
    Sketcher.Constraint("Tangent", 9, 2, 10, 2),
    Sketcher.Constraint("Tangent", 10, 1, 11, 1),
    Sketcher.Constraint("Tangent", 11, 2, 12, 2),
    Sketcher.Constraint("Tangent", 12, 1, 13, 1),
    Sketcher.Constraint("Tangent", 13, 2, 14, 2),
    Sketcher.Constraint("Tangent", 14, 1, 15, 1),
    Sketcher.Constraint("Tangent", 15, 2, 8, 2),
    Sketcher.Constraint("Tangent", 16, 1, 17, 1),
    Sketcher.Constraint("Tangent", 17, 2, 18, 2),
    Sketcher.Constraint("Tangent", 18, 1, 19, 1),
    Sketcher.Constraint("Tangent", 19, 2, 20, 2),
    Sketcher.Constraint("Tangent", 20, 1, 21, 1),
    Sketcher.Constraint("Tangent", 21, 2, 22, 2),
    Sketcher.Constraint("Tangent", 22, 1, 23, 1),
    Sketcher.Constraint("Tangent", 23, 2, 16, 2),
    Sketcher.Constraint("Tangent", 24, 2, 25, 2),
    Sketcher.Constraint("Tangent", 25, 1, 26, 1),
    Sketcher.Constraint("Tangent", 26, 2, 27, 2),
    Sketcher.Constraint("Tangent", 27, 1, 28, 1),
    Sketcher.Constraint("Tangent", 28, 2, 29, 2),
    Sketcher.Constraint("Tangent", 29, 1, 30, 1),
    Sketcher.Constraint("Coincident", 30, 2, 31, 1),
    Sketcher.Constraint("Coincident", 31, 2, 32, 1),
    Sketcher.Constraint("Tangent", 32, 2, 33, 2),
    Sketcher.Constraint("Tangent", 33, 1, 24, 1),
    Sketcher.Constraint("Tangent", 34, 1, 35, 1),
    Sketcher.Constraint("Tangent", 35, 2, 36, 2),
    Sketcher.Constraint("Tangent", 36, 1, 37, 1),
    Sketcher.Constraint("Tangent", 37, 2, 38, 2),
    Sketcher.Constraint("Tangent", 38, 1, 39, 1),
    Sketcher.Constraint("Tangent", 39, 2, 40, 2),
    Sketcher.Constraint("Tangent", 40, 1, 41, 1),
    Sketcher.Constraint("Tangent", 41, 2, 34, 2),
    Sketcher.Constraint("Tangent", 42, 2, 43, 2),
    Sketcher.Constraint("Tangent", 43, 1, 44, 1),
    Sketcher.Constraint("Tangent", 44, 2, 45, 2),
    Sketcher.Constraint("Tangent", 45, 1, 46, 1),
    Sketcher.Constraint("Tangent", 46, 2, 47, 2),
    Sketcher.Constraint("Tangent", 47, 1, 48, 1),
    Sketcher.Constraint("Coincident", 48, 2, 49, 1),
    Sketcher.Constraint("Coincident", 49, 2, 50, 1),
    Sketcher.Constraint("Tangent", 50, 2, 51, 2),
    Sketcher.Constraint("Tangent", 51, 1, 42, 1),
    Sketcher.Constraint("Tangent", 52, 1, 53, 1),
    Sketcher.Constraint("Tangent", 53, 2, 54, 2),
    Sketcher.Constraint("Tangent", 54, 1, 55, 1),
    Sketcher.Constraint("Tangent", 55, 2, 56, 2),
    Sketcher.Constraint("Tangent", 56, 1, 57, 1),
    Sketcher.Constraint("Tangent", 57, 2, 58, 2),
    Sketcher.Constraint("Tangent", 58, 1, 59, 1),
    Sketcher.Constraint("Tangent", 59, 2, 52, 2),
    Sketcher.Constraint("Tangent", 60, 2, 61, 2),
    Sketcher.Constraint("Tangent", 61, 1, 62, 1),
    Sketcher.Constraint("Tangent", 62, 2, 63, 2),
    Sketcher.Constraint("Tangent", 63, 1, 64, 1),
    Sketcher.Constraint("Tangent", 64, 2, 65, 2),
    Sketcher.Constraint("Tangent", 65, 1, 66, 1),
    Sketcher.Constraint("Tangent", 66, 2, 67, 2),
    Sketcher.Constraint("Tangent", 67, 1, 60, 1),
    Sketcher.Constraint("Horizontal", 1),
    Sketcher.Constraint("Vertical", 3),
    Sketcher.Constraint("Horizontal", 5),
    Sketcher.Constraint("Vertical", 7),
    Sketcher.Constraint("Horizontal", 9),
    Sketcher.Constraint("Vertical", 11),
    Sketcher.Constraint("Horizontal", 13),
    Sketcher.Constraint("Vertical", 15),
    Sketcher.Constraint("Vertical", 17),
    Sketcher.Constraint("Horizontal", 19),
    Sketcher.Constraint("Vertical", 21),
    Sketcher.Constraint("Horizontal", 23),
    Sketcher.Constraint("Vertical", 24),
    Sketcher.Constraint("Horizontal", 26),
    Sketcher.Constraint("Vertical", 28),
    Sketcher.Constraint("Horizontal", 30),
    Sketcher.Constraint("Vertical", 31),
    Sketcher.Constraint("Horizontal", 32),
    Sketcher.Constraint("Vertical", 35),
    Sketcher.Constraint("Horizontal", 37),
    Sketcher.Constraint("Vertical", 39),
    Sketcher.Constraint("Horizontal", 41),
    Sketcher.Constraint("Vertical", 42),
    Sketcher.Constraint("Horizontal", 44),
    Sketcher.Constraint("Vertical", 46),
    Sketcher.Constraint("Horizontal", 48),
    Sketcher.Constraint("Vertical", 49),
    Sketcher.Constraint("Horizontal", 50),
    Sketcher.Constraint("Vertical", 53),
    Sketcher.Constraint("Horizontal", 55),
    Sketcher.Constraint("Vertical", 57),
    Sketcher.Constraint("Horizontal", 59),
    Sketcher.Constraint("Vertical", 60),
    Sketcher.Constraint("Horizontal", 62),
    Sketcher.Constraint("Vertical", 64),
    Sketcher.Constraint("Horizontal", 66),
    Sketcher.Constraint("Equal", 0, 2),
    Sketcher.Constraint("Equal", 2, 4),
    Sketcher.Constraint("Equal", 4, 8),
    Sketcher.Constraint("Equal", 8, 10),
    Sketcher.Constraint("Equal", 10, 12),
    Sketcher.Constraint("Equal", 12, 14),
    Sketcher.Constraint("Equal", 14, 16),
    Sketcher.Constraint("Equal", 16, 18),
    Sketcher.Constraint("Equal", 18, 20),
    Sketcher.Constraint("Equal", 6, 22),
    Sketcher.Constraint("Equal", 20, 25),
    Sketcher.Constraint("Equal", 25, 27),
    Sketcher.Constraint("Equal", 27, 29),
    Sketcher.Constraint("Equal", 29, 33),
    Sketcher.Constraint("Equal", 33, 34),
    Sketcher.Constraint("Equal", 34, 36),
    Sketcher.Constraint("Equal", 36, 38),
    Sketcher.Constraint("Equal", 38, 40),
    Sketcher.Constraint("Equal", 40, 43),
    Sketcher.Constraint("Equal", 43, 45),
    Sketcher.Constraint("Equal", 45, 47),
    Sketcher.Constraint("Equal", 47, 51),
    Sketcher.Constraint("Equal", 51, 52),
    Sketcher.Constraint("Equal", 22, 54),
    Sketcher.Constraint("Equal", 52, 56),
    Sketcher.Constraint("Equal", 56, 58),
    Sketcher.Constraint("Equal", 58, 61),
    Sketcher.Constraint("Equal", 61, 63),
    Sketcher.Constraint("Equal", 63, 65),
    Sketcher.Constraint("Equal", 54, 67),
    Sketcher.Constraint("Symmetric", 22, 3, 54, 3, -1, 1),
    Sketcher.Constraint("Symmetric", 6, 3, 67, 3, -1, 1),
    Sketcher.Constraint("Symmetric", 4, 3, 16, 3, -2),
    Sketcher.Constraint("Symmetric", 0, 3, 20, 3, -2),
    Sketcher.Constraint("Symmetric", 27, 3, 43, 3, -2),
    Sketcher.Constraint("Symmetric", 33, 3, 47, 3, -2),
    Sketcher.Constraint("Symmetric", 58, 3, 63, 3, -2),
    Sketcher.Constraint("Symmetric", 30, 2, 49, 2, -2),
    Sketcher.Constraint("Horizontal", 2, 3, 8, 3),
    Sketcher.Constraint("Horizontal", 4, 3, 12, 3),
    Sketcher.Constraint("Horizontal", 27, 3, 34, 3),
    Sketcher.Constraint("Horizontal", 29, 3, 36, 3),
    Sketcher.Constraint("Vertical", 20, 3, 25, 3),
    Sketcher.Constraint("Vertical", 18, 3, 27, 3),
    Sketcher.Constraint("Vertical", 14, 3, 34, 3),
    Sketcher.Constraint("Vertical", 12, 3, 38, 3),
    Sketcher.Constraint("Vertical", 49, 2, 56, 1),
    Sketcher.Constraint("Radius", 0, Q("3 mm")),
    Sketcher.Constraint("Radius", 6, Q("6 mm")),
    Sketcher.Constraint("DistanceX", 9, 1, 9, 2, Q("40 mm")),
    Sketcher.Constraint("DistanceX", 30, 1, 30, 2, Q("6 mm")),
    Sketcher.Constraint("DistanceY", 31, 1, 31, 2, Q("1 mm")),
    Sketcher.Constraint("DistanceY", 53, 1, 53, 2, Q("9 mm")),
    Sketcher.Constraint("DistanceX", 1, 1, 1, 2, Q("20.5 mm")),
    Sketcher.Constraint("DistanceX", 2, 3, -1, 1, Q("34 mm")),
    Sketcher.Constraint("DistanceY", 4, 3, -1, 1, Q("37 mm")),
    Sketcher.Constraint("DistanceX", 8, 3, -1, 1, Q("20 mm")),
    Sketcher.Constraint("DistanceY", -1, 1, 29, 3, Q("10 mm")),
    Sketcher.Constraint("DistanceY", 3, 2, 3, 1, Q("23.08 mm")),
    Sketcher.Constraint("DistanceY", 24, 2, 24, 1, Q("10.92 mm")),
])
pocket3 = body.newObject("PartDesign::Pocket", "Pocket002")
pocket3.Profile = sketch4
pocket3.Type = "ThroughAll"
pocket3.Midplane = True

doc.recompute()
